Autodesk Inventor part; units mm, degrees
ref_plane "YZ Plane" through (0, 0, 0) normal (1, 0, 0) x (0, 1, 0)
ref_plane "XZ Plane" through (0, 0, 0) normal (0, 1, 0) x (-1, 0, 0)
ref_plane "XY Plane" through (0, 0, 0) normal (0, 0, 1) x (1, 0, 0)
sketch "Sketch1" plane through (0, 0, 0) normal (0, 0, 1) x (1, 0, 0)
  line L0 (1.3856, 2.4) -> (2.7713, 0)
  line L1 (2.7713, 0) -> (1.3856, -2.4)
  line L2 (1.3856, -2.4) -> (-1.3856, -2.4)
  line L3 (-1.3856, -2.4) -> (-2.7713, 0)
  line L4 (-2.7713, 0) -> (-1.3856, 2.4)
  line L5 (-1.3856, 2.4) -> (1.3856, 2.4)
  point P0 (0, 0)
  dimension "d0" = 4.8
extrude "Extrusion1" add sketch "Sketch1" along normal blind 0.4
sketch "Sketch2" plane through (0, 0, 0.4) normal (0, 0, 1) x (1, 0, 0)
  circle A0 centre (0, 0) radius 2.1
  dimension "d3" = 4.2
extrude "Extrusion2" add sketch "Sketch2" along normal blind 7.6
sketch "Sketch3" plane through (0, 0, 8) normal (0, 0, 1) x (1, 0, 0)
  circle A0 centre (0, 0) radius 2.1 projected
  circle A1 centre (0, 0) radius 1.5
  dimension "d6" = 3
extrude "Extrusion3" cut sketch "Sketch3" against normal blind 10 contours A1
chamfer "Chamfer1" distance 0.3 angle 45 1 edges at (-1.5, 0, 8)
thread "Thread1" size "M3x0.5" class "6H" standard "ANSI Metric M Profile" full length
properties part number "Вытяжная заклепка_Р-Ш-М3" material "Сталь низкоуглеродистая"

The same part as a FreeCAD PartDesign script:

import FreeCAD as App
import Part
import Sketcher

V = App.Vector
Q = App.Units.Quantity


def edges_at(feature, points):
    """Names of the edges that pass closest to the given points."""
    edges = feature.Shape.Edges
    near = lambda p: min(range(len(edges)), key=lambda i: edges[i].distToShape(Part.Vertex(*p))[0])
    return sorted({f"Edge{near(p) + 1}" for p in points})

doc = App.newDocument("Part")
params = doc.addObject("Spreadsheet::Sheet", "Params")
for row, (alias, value) in enumerate([
    ("pad1_length", "0.4 mm"),
    ("sketch2_diameter", "4.2 mm"),
    ("pad2_length", "7.6 mm"),
    ("sketch3_diameter", "3 mm"),
    ("pocket1_length", "10 mm"),
    ("chamfer_size", "0.3 mm"),
], start=1):
    params.set(f"A{row}", alias)
    params.set(f"B{row}", "=" + value)
    params.setAlias(f"B{row}", alias)

body = doc.addObject("PartDesign::Body", "Body")

sketch1 = body.newObject("Sketcher::SketchObject", "Sketch")
sketch1.AttachmentSupport = (doc.getObject("XY_Plane"), [""])
sketch1.MapMode = "FlatFace"
sketch1.addGeometry(Part.LineSegment(V(2.7713, 0, 0), V(1.3856, 2.4, 0)), False)
sketch1.addGeometry(Part.LineSegment(V(1.3856, 2.4, 0), V(-1.3856, 2.4, 0)), False)
sketch1.addGeometry(Part.LineSegment(V(-1.3856, 2.4, 0), V(-2.7713, 0, 0)), False)
sketch1.addGeometry(Part.LineSegment(V(-2.7713, 0, 0), V(-1.3856, -2.4, 0)), False)
sketch1.addGeometry(Part.LineSegment(V(-1.3856, -2.4, 0), V(1.3856, -2.4, 0)), False)
sketch1.addGeometry(Part.LineSegment(V(1.3856, -2.4, 0), V(2.7713, 0, 0)), False)
sketch1.addConstraint(Sketcher.Constraint("Coincident", 0, 2, 1, 1))
sketch1.addConstraint(Sketcher.Constraint("Coincident", 1, 2, 2, 1))
sketch1.addConstraint(Sketcher.Constraint("Coincident", 2, 2, 3, 1))
sketch1.addConstraint(Sketcher.Constraint("Coincident", 3, 2, 4, 1))
sketch1.addConstraint(Sketcher.Constraint("Coincident", 4, 2, 5, 1))
sketch1.addConstraint(Sketcher.Constraint("Coincident", 5, 2, 0, 1))
sketch1.addConstraint(Sketcher.Constraint("Horizontal", 1))
sketch1.addConstraint(Sketcher.Constraint("Horizontal", 4))
sketch1.addConstraint(Sketcher.Constraint("Symmetric", 0, 2, 3, 2, -1, 1))
sketch1.addConstraint(Sketcher.Constraint("Symmetric", 2, 2, 5, 2, -1, 1))
sketch1.addConstraint(Sketcher.Constraint("PointOnObject", 2, 2, -1))
sketch1.addConstraint(Sketcher.Constraint("Parallel", 2, 5))
sketch1.addConstraint(Sketcher.Constraint("Vertical", 1, 2, 3, 2))
sketch1.addConstraint(Sketcher.Constraint("DistanceY", 3, 2, 1, 2, Q("4.8 mm")))
sketch1.addConstraint(Sketcher.Constraint("Angle", 0, Q("120.001 deg")))
sketch1.addConstraint(Sketcher.Constraint("DistanceX", 1, 2, 1, 1, Q("2.7712 mm")))
pad1 = body.newObject("PartDesign::Pad", "Pad")
pad1.Profile = sketch1
pad1.setExpression("Length", "Params.pad1_length")

sketch2 = body.newObject("Sketcher::SketchObject", "Sketch001")
sketch2.AttachmentSupport = (doc.getObject("XY_Plane"), [""])
sketch2.MapMode = "FlatFace"
sketch2.AttachmentOffset = App.Placement(V(0, 0, 0.4), App.Rotation())
sketch2.addGeometry(Part.Circle(V(0, 0, 0), V(0, 0, 1), 2.1), False)
sketch2.addConstraint(Sketcher.Constraint("Coincident", 0, 3, -1, 1))
sketch2.addConstraint(Sketcher.Constraint("Diameter", 0, Q("4.2 mm")))
sketch2.setExpression("Constraints[1]", "Params.sketch2_diameter")
pad2 = body.newObject("PartDesign::Pad", "Pad001")
pad2.Profile = sketch2
pad2.setExpression("Length", "Params.pad2_length")

sketch3 = body.newObject("Sketcher::SketchObject", "Sketch002")
sketch3.AttachmentSupport = (doc.getObject("XY_Plane"), [""])
sketch3.MapMode = "FlatFace"
sketch3.AttachmentOffset = App.Placement(V(0, 0, 8), App.Rotation())
sketch3.addGeometry(Part.Circle(V(0, 0, 0), V(0, 0, 1), 1.5), False)
sketch3.addConstraint(Sketcher.Constraint("Coincident", 0, 3, -1, 1))
sketch3.addConstraint(Sketcher.Constraint("Diameter", 0, Q("3 mm")))
sketch3.setExpression("Constraints[1]", "Params.sketch3_diameter")
pocket1 = body.newObject("PartDesign::Pocket", "Pocket")
pocket1.Profile = sketch3
pocket1.setExpression("Length", "Params.pocket1_length")
doc.recompute()

chamfer = body.newObject("PartDesign::Chamfer", "Chamfer")
chamfer.Base = (pocket1, edges_at(pocket1, [(-1.5, 0, 8)]))
chamfer.setExpression("Size", "Params.chamfer_size")

doc.recompute()
